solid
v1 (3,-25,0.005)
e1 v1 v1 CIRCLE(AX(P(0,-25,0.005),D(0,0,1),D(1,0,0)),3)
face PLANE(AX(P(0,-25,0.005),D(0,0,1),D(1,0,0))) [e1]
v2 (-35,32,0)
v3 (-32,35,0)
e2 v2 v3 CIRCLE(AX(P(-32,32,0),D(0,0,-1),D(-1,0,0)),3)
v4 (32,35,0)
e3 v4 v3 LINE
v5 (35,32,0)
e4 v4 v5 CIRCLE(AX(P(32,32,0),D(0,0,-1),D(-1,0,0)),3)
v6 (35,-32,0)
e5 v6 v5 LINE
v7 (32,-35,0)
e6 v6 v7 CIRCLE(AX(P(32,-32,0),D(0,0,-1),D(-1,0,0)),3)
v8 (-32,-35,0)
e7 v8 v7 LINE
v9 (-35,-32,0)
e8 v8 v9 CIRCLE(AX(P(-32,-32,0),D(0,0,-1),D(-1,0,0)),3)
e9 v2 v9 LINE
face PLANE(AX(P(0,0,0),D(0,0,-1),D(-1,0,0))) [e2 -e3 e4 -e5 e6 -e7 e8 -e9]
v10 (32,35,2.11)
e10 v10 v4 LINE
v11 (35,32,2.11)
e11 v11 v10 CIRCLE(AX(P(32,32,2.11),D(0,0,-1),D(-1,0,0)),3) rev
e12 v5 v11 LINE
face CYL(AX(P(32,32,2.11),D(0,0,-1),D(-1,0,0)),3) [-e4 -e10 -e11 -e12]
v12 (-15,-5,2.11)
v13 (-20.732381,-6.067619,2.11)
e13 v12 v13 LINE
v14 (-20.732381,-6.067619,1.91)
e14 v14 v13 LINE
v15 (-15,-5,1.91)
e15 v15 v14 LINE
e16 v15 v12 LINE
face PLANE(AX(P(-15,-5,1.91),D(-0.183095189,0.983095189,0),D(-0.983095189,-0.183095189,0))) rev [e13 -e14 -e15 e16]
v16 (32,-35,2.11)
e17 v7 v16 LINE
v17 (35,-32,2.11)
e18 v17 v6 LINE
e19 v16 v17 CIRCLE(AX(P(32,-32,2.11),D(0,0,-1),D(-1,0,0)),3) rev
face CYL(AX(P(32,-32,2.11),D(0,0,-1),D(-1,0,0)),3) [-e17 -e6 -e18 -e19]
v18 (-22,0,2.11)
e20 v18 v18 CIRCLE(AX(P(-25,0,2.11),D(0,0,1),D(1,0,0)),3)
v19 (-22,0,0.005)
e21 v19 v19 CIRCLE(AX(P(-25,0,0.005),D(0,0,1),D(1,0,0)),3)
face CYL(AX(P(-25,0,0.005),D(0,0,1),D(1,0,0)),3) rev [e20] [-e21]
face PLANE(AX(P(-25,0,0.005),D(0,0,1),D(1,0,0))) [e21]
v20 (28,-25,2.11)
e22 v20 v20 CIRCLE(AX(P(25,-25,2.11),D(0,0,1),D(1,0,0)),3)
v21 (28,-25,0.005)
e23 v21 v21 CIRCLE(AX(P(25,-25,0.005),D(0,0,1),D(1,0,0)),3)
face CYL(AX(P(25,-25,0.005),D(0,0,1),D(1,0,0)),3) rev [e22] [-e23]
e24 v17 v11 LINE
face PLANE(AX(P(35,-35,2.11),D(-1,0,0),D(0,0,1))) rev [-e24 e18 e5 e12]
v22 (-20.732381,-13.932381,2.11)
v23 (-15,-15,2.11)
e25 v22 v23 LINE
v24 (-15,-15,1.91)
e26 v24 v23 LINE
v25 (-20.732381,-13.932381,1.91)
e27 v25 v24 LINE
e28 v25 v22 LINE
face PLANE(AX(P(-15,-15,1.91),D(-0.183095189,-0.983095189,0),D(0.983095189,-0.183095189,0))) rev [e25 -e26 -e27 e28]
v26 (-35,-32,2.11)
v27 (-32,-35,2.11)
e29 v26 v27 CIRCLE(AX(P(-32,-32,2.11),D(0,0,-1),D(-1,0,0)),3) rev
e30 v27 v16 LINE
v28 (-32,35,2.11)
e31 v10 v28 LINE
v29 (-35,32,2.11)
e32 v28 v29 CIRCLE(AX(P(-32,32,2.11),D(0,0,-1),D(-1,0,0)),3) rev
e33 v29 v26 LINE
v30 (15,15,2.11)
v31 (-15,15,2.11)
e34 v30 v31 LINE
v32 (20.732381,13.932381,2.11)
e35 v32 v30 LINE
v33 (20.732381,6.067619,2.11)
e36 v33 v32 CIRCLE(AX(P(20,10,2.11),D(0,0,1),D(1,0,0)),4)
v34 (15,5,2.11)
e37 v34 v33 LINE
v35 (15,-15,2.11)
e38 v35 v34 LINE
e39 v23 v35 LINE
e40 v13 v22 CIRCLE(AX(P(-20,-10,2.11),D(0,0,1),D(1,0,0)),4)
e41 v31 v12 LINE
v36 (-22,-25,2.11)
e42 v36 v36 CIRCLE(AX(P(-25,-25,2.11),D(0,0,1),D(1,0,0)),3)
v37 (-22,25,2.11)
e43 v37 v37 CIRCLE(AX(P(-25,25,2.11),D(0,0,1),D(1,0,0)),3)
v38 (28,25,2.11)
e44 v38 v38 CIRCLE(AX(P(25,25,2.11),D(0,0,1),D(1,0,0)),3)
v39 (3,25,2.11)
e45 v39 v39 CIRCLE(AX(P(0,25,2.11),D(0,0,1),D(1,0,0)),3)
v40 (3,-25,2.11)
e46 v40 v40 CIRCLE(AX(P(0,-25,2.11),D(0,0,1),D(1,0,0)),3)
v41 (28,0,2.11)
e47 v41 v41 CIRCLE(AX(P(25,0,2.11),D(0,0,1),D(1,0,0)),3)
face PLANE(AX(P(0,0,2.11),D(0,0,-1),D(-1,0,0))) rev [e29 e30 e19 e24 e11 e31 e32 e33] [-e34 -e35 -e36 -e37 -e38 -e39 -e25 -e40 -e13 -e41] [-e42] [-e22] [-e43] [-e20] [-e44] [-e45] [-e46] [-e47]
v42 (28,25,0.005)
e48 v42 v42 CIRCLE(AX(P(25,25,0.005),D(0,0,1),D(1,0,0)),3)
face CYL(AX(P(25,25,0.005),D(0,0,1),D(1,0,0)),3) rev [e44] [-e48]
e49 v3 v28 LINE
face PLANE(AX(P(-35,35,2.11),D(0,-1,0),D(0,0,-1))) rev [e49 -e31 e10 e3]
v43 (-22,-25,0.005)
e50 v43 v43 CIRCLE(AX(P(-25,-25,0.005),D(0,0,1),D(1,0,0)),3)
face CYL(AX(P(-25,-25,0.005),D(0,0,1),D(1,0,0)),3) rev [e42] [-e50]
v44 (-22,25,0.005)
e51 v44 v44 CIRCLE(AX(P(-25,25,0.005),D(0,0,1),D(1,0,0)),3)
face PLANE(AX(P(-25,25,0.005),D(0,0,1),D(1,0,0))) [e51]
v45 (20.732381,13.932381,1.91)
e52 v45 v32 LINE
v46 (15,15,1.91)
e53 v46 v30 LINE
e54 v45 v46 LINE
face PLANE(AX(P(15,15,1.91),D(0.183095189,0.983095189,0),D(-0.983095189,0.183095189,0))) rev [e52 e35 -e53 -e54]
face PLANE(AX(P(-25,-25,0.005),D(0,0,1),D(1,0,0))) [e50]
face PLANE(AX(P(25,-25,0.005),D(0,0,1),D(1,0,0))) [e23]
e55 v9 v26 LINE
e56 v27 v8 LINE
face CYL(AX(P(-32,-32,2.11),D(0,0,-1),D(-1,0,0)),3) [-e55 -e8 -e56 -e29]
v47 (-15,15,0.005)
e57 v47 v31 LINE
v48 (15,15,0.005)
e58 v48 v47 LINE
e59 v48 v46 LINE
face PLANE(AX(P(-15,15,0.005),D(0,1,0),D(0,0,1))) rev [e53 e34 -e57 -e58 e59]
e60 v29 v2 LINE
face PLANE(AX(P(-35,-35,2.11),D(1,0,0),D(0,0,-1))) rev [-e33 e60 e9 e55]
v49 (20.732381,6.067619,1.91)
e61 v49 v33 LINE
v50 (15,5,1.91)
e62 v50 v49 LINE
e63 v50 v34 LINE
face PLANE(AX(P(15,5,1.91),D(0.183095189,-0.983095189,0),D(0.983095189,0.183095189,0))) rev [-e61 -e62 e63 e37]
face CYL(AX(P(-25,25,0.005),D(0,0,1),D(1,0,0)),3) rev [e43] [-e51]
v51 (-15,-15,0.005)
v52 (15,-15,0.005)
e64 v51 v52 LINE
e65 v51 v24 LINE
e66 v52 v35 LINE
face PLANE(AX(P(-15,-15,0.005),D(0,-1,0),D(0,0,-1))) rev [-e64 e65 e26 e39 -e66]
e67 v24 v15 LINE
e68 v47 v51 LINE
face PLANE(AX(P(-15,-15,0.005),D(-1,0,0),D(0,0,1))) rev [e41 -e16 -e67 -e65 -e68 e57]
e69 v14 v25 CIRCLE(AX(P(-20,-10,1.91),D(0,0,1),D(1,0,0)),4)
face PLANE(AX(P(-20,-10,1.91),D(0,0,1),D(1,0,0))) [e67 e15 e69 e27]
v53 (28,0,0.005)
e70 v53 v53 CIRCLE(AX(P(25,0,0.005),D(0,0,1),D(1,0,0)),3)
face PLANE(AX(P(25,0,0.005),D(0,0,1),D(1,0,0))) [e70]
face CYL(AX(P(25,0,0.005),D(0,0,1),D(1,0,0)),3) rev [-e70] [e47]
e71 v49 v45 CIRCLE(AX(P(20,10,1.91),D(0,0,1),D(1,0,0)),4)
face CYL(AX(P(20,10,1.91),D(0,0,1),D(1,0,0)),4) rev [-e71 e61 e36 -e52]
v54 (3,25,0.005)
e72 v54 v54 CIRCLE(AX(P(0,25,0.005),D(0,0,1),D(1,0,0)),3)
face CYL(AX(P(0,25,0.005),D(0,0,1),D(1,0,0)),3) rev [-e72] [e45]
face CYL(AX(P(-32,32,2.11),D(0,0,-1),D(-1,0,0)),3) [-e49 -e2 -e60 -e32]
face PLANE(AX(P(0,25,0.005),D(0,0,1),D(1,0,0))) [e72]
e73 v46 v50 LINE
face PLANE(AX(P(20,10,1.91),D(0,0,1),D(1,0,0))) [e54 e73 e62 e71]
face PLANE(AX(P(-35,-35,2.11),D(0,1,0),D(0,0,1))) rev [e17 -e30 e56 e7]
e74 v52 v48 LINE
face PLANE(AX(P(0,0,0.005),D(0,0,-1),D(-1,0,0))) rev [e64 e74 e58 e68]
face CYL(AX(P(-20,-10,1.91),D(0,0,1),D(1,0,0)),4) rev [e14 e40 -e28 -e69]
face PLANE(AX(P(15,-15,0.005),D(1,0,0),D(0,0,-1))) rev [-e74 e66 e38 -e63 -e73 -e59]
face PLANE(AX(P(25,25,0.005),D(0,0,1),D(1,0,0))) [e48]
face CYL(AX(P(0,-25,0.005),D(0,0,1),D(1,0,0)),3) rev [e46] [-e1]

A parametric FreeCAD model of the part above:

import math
import FreeCAD as App
import Part
import Sketcher
from FreeCAD import Vector
Q = App.Units.Quantity


def edges_at(feature, points):
    """Names of the edges that pass closest to the given points."""
    edges = feature.Shape.Edges
    near = lambda p: min(range(len(edges)), key=lambda i: edges[i].distToShape(Part.Vertex(*p))[0])
    return sorted({f"Edge{near(p) + 1}" for p in points})

doc = App.newDocument("Part")
body = doc.addObject("PartDesign::Body", "Body")

sketch1 = doc.addObject("Sketcher::SketchObject", "Sketch")
body.addObject(sketch1)
sketch1.AttachmentSupport = (doc.XY_Plane, [""])
sketch1.MapMode = "FlatFace"
sketch1.addGeometry([
    Part.LineSegment(Vector(-35, 35, 0), Vector(-35, -35, 0)),
    Part.LineSegment(Vector(-35, -35, 0), Vector(35, -35, 0)),
    Part.LineSegment(Vector(35, -35, 0), Vector(35, 35, 0)),
    Part.LineSegment(Vector(35, 35, 0), Vector(-35, 35, 0)),
], False)
sketch1.addConstraint([
    Sketcher.Constraint("Coincident", 0, 2, 1, 1),
    Sketcher.Constraint("Coincident", 1, 2, 2, 1),
    Sketcher.Constraint("Coincident", 2, 2, 3, 1),
    Sketcher.Constraint("Coincident", 3, 2, 0, 1),
    Sketcher.Constraint("Vertical", 0),
    Sketcher.Constraint("Horizontal", 1),
    Sketcher.Constraint("Vertical", 2),
    Sketcher.Constraint("Horizontal", 3),
    Sketcher.Constraint("Symmetric", 0, 2, 2, 2, -1, 1),
    Sketcher.Constraint("Equal", 3, 0),
    Sketcher.Constraint("DistanceX", 1, 1, 1, 2, Q("70 mm")),
])
pad1 = doc.addObject("PartDesign::Pad", "Pad")
body.addObject(pad1)
pad1.Profile = sketch1
pad1.Length = 2.11

sketch2 = doc.addObject("Sketcher::SketchObject", "Sketch001")
body.addObject(sketch2)
sketch2.AttachmentSupport = (doc.XY_Plane, [""])
sketch2.MapMode = "FlatFace"
sketch2.AttachmentOffset = App.Placement(Vector(0, 0, 2.11), App.Rotation())
sketch2.addGeometry([
    Part.Circle(Vector(0, 25, 0), Vector(0, 0, 1), 3),
    Part.Circle(Vector(25, 25, 0), Vector(0, 0, 1), 3),
    Part.Circle(Vector(25, 0, 0), Vector(0, 0, 1), 3),
    Part.Circle(Vector(25, -25, 0), Vector(0, 0, 1), 3),
    Part.Circle(Vector(0, -25, 0), Vector(0, 0, 1), 3),
    Part.Circle(Vector(-25, -25, 0), Vector(0, 0, 1), 3),
    Part.Circle(Vector(-25, 0, 0), Vector(0, 0, 1), 3),
    Part.Circle(Vector(-25, 25, 0), Vector(0, 0, 1), 3),
    Part.LineSegment(Vector(-15, 15, 0), Vector(-15, -15, 0)),
    Part.LineSegment(Vector(-15, -15, 0), Vector(15, -15, 0)),
    Part.LineSegment(Vector(15, -15, 0), Vector(15, 15, 0)),
    Part.LineSegment(Vector(15, 15, 0), Vector(-15, 15, 0)),
], False)
sketch2.addConstraint([
    Sketcher.Constraint("Coincident", 8, 2, 9, 1),
    Sketcher.Constraint("Coincident", 9, 2, 10, 1),
    Sketcher.Constraint("Coincident", 10, 2, 11, 1),
    Sketcher.Constraint("Coincident", 11, 2, 8, 1),
    Sketcher.Constraint("Vertical", 8),
    Sketcher.Constraint("Horizontal", 9),
    Sketcher.Constraint("Vertical", 10),
    Sketcher.Constraint("Horizontal", 11),
    Sketcher.Constraint("Equal", 0, 1),
    Sketcher.Constraint("Equal", 1, 2),
    Sketcher.Constraint("Equal", 2, 3),
    Sketcher.Constraint("Equal", 3, 4),
    Sketcher.Constraint("Equal", 4, 5),
    Sketcher.Constraint("Equal", 5, 6),
    Sketcher.Constraint("Equal", 6, 7),
    Sketcher.Constraint("Symmetric", 0, 3, 4, 3, -1, 1),
    Sketcher.Constraint("Symmetric", 1, 3, 5, 3, -1, 1),
    Sketcher.Constraint("Symmetric", 2, 3, 6, 3, -1, 1),
    Sketcher.Constraint("Symmetric", 3, 3, 7, 3, -1, 1),
    Sketcher.Constraint("Symmetric", 8, 2, 10, 2, -1, 1),
    Sketcher.Constraint("Symmetric", 3, 3, 5, 3, -2),
    Sketcher.Constraint("PointOnObject", 0, 3, -2),
    Sketcher.Constraint("PointOnObject", 2, 3, -1),
    Sketcher.Constraint("Horizontal", 0, 3, 1, 3),
    Sketcher.Constraint("Vertical", 1, 3, 2, 3),
    Sketcher.Constraint("Equal", 11, 8),
    Sketcher.Constraint("Diameter", 0, Q("6 mm")),
    Sketcher.Constraint("DistanceX", 9, 1, 9, 2, Q("30 mm")),
    Sketcher.Constraint("DistanceY", -1, 1, 0, 3, Q("25 mm")),
    Sketcher.Constraint("DistanceX", -1, 1, 1, 3, Q("25 mm")),
])
pocket1 = doc.addObject("PartDesign::Pocket", "Pocket")
body.addObject(pocket1)
pocket1.Profile = sketch2
pocket1.Length = 2.105

sketch3 = doc.addObject("Sketcher::SketchObject", "Sketch002")
body.addObject(sketch3)
sketch3.AttachmentSupport = (doc.XY_Plane, [""])
sketch3.MapMode = "FlatFace"
sketch3.AttachmentOffset = App.Placement(Vector(0, 0, 2.11), App.Rotation())
sketch3.addGeometry([
    Part.LineSegment(Vector(15, 15, 0), Vector(15, 5, 0)),
    Part.LineSegment(Vector(15, 5, 0), Vector(20.7, 6.1, 0)),
    Part.ArcOfCircle(Part.Circle(Vector(20, 10, 0), Vector(0, 0, 1), 4), math.radians(-79), math.radians(79)),
    Part.LineSegment(Vector(20.7, 13.9, 0), Vector(15, 15, 0)),
    Part.LineSegment(Vector(-20.7, -13.9, 0), Vector(-15, -15, 0)),
    Part.LineSegment(Vector(-15, -15, 0), Vector(-15, -5, 0)),
    Part.LineSegment(Vector(-15, -5, 0), Vector(-20.7, -6.1, 0)),
    Part.ArcOfCircle(Part.Circle(Vector(-20, -10, 0), Vector(0, 0, 1), 4), math.radians(101), math.radians(259)),
], False)
sketch3.addConstraint([
    Sketcher.Constraint("Coincident", 0, 2, 1, 1),
    Sketcher.Constraint("Tangent", 1, 2, 2, 1),
    Sketcher.Constraint("Tangent", 2, 2, 3, 1),
    Sketcher.Constraint("Coincident", 3, 2, 0, 1),
    Sketcher.Constraint("Coincident", 4, 2, 5, 1),
    Sketcher.Constraint("Coincident", 5, 2, 6, 1),
    Sketcher.Constraint("Tangent", 6, 2, 7, 1),
    Sketcher.Constraint("Tangent", 7, 2, 4, 1),
    Sketcher.Constraint("Vertical", 0),
    Sketcher.Constraint("Vertical", 5),
    Sketcher.Constraint("Equal", 2, 7),
    Sketcher.Constraint("Symmetric", 2, 3, 7, 3, -1, 1),
    Sketcher.Constraint("Symmetric", 3, 2, 4, 2, -1, 1),
    Sketcher.Constraint("Parallel", 1, 6),
    Sketcher.Constraint("Vertical", 1, 2, 2, 2),
    Sketcher.Constraint("Radius", 2, Q("4 mm")),
    Sketcher.Constraint("DistanceY", 0, 2, 0, 1, Q("10 mm")),
    Sketcher.Constraint("DistanceX", -1, 1, 2, 3, Q("20 mm")),
    Sketcher.Constraint("DistanceY", -1, 1, 2, 3, Q("10 mm")),
    Sketcher.Constraint("DistanceX", -1, 1, 0, 2, Q("15 mm")),
])
pocket2 = doc.addObject("PartDesign::Pocket", "Pocket001")
body.addObject(pocket2)
pocket2.Profile = sketch3
pocket2.Length = 0.2
doc.recompute()

fillet = doc.addObject("PartDesign::Fillet", "Fillet")
body.addObject(fillet)
fillet.Base = (pocket2, edges_at(pocket2, [
    (35, -35, 1.055),
    (-35, -35, 1.055),
    (-35, 35, 1.055),
    (35, 35, 1.055),
]))
fillet.Radius = 3

doc.recompute()
